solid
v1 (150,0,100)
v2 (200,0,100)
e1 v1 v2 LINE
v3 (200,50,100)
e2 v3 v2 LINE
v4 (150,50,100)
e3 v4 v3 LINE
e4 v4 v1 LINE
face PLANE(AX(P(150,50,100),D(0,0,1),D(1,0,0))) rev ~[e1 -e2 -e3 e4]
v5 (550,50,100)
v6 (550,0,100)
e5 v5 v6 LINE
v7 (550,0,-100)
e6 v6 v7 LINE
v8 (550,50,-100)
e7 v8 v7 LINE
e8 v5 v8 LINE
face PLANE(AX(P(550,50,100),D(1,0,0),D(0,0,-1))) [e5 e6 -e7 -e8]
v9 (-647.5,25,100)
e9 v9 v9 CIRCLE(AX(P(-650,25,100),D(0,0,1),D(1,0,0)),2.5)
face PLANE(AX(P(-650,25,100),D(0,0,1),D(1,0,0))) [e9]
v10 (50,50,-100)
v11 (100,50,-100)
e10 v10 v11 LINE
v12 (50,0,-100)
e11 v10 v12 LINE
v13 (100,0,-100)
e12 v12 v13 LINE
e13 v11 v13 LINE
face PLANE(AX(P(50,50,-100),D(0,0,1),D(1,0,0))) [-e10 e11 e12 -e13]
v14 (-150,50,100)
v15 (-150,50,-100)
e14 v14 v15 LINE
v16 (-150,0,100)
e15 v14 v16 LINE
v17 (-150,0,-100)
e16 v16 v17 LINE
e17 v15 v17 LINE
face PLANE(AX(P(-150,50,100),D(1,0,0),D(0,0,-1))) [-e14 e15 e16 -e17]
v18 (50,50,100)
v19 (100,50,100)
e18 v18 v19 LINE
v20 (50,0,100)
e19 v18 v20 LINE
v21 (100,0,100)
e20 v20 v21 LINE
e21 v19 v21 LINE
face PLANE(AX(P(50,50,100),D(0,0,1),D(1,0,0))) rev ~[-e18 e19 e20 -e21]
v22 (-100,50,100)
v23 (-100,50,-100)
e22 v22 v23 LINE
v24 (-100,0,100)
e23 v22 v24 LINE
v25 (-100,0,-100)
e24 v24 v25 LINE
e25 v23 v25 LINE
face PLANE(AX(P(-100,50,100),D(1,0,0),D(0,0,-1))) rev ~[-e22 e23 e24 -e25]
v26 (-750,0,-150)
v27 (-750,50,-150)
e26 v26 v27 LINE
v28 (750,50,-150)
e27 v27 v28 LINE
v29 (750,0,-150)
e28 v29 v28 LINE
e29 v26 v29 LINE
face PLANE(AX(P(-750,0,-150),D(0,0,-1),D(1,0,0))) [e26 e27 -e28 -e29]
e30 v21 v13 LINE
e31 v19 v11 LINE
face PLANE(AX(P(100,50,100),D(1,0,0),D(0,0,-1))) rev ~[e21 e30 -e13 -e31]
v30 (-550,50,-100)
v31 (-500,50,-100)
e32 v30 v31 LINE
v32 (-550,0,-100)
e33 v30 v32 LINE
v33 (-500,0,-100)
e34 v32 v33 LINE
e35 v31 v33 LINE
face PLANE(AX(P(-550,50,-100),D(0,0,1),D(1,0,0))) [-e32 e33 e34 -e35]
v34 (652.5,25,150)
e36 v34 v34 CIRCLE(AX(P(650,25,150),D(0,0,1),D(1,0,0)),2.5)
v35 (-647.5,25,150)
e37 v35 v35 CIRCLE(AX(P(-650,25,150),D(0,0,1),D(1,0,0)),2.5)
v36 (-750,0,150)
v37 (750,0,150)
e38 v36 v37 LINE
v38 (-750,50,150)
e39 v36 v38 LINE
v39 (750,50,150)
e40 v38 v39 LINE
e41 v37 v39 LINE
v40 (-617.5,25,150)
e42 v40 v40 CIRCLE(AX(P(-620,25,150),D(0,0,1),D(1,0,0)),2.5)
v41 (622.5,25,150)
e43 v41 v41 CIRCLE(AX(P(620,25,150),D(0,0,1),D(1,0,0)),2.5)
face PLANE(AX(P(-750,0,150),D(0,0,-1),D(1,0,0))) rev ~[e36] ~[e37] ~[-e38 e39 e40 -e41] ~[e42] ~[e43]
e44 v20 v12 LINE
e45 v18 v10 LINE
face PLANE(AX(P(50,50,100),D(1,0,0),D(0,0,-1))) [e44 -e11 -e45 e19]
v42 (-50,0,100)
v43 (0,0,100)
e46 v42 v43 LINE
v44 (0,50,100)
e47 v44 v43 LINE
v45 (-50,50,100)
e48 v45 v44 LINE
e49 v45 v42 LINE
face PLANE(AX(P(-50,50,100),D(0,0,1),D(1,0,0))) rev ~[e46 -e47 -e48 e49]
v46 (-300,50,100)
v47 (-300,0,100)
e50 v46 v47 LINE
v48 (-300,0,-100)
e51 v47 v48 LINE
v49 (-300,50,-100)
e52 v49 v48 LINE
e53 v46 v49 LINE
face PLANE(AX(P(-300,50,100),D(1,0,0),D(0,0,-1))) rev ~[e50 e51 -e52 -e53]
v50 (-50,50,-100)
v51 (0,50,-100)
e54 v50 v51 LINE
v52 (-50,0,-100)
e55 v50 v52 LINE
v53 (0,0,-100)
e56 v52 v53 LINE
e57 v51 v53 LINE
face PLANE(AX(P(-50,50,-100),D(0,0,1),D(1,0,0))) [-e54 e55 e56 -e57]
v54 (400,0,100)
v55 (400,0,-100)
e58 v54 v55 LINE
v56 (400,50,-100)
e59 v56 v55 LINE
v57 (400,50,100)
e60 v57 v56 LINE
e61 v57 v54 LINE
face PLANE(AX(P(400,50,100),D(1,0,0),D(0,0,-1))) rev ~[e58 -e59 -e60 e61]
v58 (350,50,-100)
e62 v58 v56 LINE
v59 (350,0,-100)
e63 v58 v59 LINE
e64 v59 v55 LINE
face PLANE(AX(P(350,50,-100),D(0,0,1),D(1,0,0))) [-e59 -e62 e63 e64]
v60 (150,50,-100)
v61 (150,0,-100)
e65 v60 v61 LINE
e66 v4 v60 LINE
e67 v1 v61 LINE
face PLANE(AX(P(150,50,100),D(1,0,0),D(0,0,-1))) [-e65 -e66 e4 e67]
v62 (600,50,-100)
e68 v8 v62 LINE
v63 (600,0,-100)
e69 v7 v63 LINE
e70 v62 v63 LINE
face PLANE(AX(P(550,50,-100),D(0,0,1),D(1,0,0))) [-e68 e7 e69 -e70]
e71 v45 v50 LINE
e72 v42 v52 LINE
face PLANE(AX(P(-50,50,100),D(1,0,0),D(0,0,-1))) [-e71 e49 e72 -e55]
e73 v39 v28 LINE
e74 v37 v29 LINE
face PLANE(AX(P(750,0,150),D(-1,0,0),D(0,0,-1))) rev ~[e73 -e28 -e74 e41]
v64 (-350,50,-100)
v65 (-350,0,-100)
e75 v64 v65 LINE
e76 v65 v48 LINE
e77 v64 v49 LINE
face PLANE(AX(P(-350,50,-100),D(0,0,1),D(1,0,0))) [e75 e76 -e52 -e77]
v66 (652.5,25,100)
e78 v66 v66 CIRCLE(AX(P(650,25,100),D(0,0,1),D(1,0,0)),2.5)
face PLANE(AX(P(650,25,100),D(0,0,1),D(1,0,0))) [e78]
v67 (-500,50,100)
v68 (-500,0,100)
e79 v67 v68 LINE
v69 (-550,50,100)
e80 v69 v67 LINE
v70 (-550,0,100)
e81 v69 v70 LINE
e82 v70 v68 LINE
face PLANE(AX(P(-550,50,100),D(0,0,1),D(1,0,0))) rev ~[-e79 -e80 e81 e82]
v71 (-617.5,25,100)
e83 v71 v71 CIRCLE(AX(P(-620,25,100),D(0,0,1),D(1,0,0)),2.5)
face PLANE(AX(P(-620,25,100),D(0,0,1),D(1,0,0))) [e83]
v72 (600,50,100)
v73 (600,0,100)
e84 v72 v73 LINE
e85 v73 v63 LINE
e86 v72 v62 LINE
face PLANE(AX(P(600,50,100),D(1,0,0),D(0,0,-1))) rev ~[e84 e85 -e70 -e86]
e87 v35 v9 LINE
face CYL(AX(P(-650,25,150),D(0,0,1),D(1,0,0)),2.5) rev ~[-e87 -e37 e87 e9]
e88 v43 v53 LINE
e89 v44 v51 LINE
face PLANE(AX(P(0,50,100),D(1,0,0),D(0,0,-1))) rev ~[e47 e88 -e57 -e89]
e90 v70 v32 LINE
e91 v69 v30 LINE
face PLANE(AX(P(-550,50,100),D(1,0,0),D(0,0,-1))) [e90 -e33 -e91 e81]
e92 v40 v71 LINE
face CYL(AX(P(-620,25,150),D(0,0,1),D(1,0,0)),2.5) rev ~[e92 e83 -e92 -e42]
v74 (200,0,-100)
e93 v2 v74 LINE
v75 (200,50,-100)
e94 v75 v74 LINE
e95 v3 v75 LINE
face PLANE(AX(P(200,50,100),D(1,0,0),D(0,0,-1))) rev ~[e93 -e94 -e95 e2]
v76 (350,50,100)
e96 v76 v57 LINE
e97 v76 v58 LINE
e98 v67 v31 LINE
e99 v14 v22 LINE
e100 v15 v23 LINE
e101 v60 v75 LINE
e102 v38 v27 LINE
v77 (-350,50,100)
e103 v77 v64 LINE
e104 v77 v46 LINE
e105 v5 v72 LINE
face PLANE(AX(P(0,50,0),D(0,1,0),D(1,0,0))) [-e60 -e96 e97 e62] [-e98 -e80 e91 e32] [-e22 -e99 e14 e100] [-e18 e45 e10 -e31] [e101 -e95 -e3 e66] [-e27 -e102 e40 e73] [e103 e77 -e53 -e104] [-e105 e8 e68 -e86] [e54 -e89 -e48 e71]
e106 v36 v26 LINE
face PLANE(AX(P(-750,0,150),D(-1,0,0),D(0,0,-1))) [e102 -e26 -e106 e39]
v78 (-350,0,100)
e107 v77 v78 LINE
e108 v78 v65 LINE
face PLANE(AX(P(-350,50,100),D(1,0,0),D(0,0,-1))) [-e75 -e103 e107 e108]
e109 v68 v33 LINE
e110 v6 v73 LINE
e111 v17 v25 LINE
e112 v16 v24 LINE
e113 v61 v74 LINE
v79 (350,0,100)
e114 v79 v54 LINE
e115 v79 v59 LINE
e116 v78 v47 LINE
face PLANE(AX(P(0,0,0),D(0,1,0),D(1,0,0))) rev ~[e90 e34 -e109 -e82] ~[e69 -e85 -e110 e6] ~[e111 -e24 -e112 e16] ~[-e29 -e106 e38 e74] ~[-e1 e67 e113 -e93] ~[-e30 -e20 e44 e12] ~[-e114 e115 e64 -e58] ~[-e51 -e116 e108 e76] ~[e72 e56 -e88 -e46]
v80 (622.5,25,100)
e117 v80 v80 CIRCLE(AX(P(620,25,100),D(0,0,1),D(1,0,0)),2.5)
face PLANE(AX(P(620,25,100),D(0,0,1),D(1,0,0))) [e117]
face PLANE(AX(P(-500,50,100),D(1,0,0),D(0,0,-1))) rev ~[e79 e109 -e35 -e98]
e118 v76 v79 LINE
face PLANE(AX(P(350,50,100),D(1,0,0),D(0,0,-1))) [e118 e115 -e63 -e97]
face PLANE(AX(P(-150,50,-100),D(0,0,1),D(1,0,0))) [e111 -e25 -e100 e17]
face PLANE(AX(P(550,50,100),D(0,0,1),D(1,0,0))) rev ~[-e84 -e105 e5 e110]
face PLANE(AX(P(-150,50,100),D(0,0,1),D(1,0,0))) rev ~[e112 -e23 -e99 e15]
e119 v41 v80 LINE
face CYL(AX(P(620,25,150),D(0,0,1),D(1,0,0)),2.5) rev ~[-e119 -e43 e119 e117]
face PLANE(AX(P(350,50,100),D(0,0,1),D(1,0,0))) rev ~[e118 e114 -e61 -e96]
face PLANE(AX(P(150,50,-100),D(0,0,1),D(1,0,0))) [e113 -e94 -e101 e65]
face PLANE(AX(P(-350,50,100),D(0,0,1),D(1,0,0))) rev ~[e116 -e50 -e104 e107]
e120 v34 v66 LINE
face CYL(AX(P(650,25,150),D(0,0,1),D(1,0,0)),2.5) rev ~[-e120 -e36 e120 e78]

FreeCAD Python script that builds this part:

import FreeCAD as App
import Part
import Sketcher

V = App.Vector


def add_polygon(sketch, points):
    """Adds a closed chain of lines whose ends are joined by coincident constraints."""
    first, n = sketch.GeometryCount, len(points)
    for a, b in zip(points, points[1:] + points[:1]):
        sketch.addGeometry(Part.LineSegment(App.Vector(*a, 0), App.Vector(*b, 0)), False)
    for i in range(n):
        sketch.addConstraint(Sketcher.Constraint("Coincident", first + i, 2, first + (i + 1) % n, 1))

doc = App.newDocument("Part")
params = doc.addObject("Spreadsheet::Sheet", "Params")
for row, (alias, value) in enumerate([
    ("sketch1_width", "1500 mm"),
    ("sketch1_height", "300 mm"),
    ("pad1_length", "50 mm"),
    ("sketch2_diameter", "5 mm"),
    ("pocket1_length", "50 mm"),
    ("sketch3_width", "50 mm"),
    ("sketch3_height", "200 mm"),
], start=1):
    params.set(f"A{row}", alias)
    params.set(f"B{row}", "=" + value)
    params.setAlias(f"B{row}", alias)

body = doc.addObject("PartDesign::Body", "Body")

sketch1 = body.newObject("Sketcher::SketchObject", "Sketch")
sketch1.AttachmentSupport = (doc.getObject("XZ_Plane"), [""])
sketch1.MapMode = "FlatFace"
add_polygon(sketch1, [(-750, -150), (-750, 150), (750, 150), (750, -150)])
sketch1.addConstraint(Sketcher.Constraint("Vertical", 0))
sketch1.addConstraint(Sketcher.Constraint("Horizontal", 1))
sketch1.addConstraint(Sketcher.Constraint("Vertical", 2))
sketch1.addConstraint(Sketcher.Constraint("Horizontal", 3))
sketch1.addConstraint(Sketcher.Constraint("Symmetric", 0, 2, 2, 2, -1, 1))
sketch1.addConstraint(Sketcher.Constraint("DistanceX", 1, 1, 1, 2, 1500.0))
sketch1.addConstraint(Sketcher.Constraint("DistanceY", 0, 1, 0, 2, 300.0))
sketch1.setExpression("Constraints[9]", "Params.sketch1_width")
sketch1.setExpression("Constraints[10]", "Params.sketch1_height")
pad1 = body.newObject("PartDesign::Pad", "Pad")
pad1.Profile = sketch1
pad1.setExpression("Length", "Params.pad1_length")
pad1.Reversed = True

sketch2 = body.newObject("Sketcher::SketchObject", "Sketch001")
sketch2.AttachmentSupport = (doc.getObject("XY_Plane"), [""])
sketch2.MapMode = "FlatFace"
sketch2.AttachmentOffset = App.Placement(V(0, 0, 150), App.Rotation())
sketch2.addGeometry(Part.Circle(V(-650, 25, 0), V(0, 0, 1), 2.5), False)
sketch2.addGeometry(Part.Circle(V(-620, 25, 0), V(0, 0, 1), 2.5), False)
sketch2.addGeometry(Part.Circle(V(620, 25, 0), V(0, 0, 1), 2.5), False)
sketch2.addGeometry(Part.Circle(V(650, 25, 0), V(0, 0, 1), 2.5), False)
sketch2.addConstraint(Sketcher.Constraint("Equal", 0, 1))
sketch2.addConstraint(Sketcher.Constraint("Equal", 1, 2))
sketch2.addConstraint(Sketcher.Constraint("Equal", 2, 3))
sketch2.addConstraint(Sketcher.Constraint("Symmetric", 1, 3, 2, 3, -2))
sketch2.addConstraint(Sketcher.Constraint("Symmetric", 0, 3, 3, 3, -2))
sketch2.addConstraint(Sketcher.Constraint("Horizontal", 0, 3, 1, 3))
sketch2.addConstraint(Sketcher.Constraint("Diameter", 0, 5.0))
sketch2.addConstraint(Sketcher.Constraint("DistanceX", 0, 3, -1, 1, 650.0))
sketch2.addConstraint(Sketcher.Constraint("DistanceY", -1, 1, 0, 3, 25.0))
sketch2.addConstraint(Sketcher.Constraint("DistanceX", 1, 3, -1, 1, 620.0))
sketch2.setExpression("Constraints[6]", "Params.sketch2_diameter")
pocket1 = body.newObject("PartDesign::Pocket", "Pocket")
pocket1.Profile = sketch2
pocket1.setExpression("Length", "Params.pocket1_length")

sketch3 = body.newObject("Sketcher::SketchObject", "Sketch002")
sketch3.AttachmentSupport = (doc.getObject("XZ_Plane"), [""])
sketch3.MapMode = "FlatFace"
sketch3.AttachmentOffset = App.Placement(V(0, 0, -50), App.Rotation())
add_polygon(sketch3, [(-550, -100), (-550, 100), (-500, 100), (-500, -100)])
add_polygon(sketch3, [(-350, -100), (-350, 100), (-300, 100), (-300, -100)])
add_polygon(sketch3, [(-150, -100), (-150, 100), (-100, 100), (-100, -100)])
add_polygon(sketch3, [(-50, -100), (-50, 100), (0, 100), (0, -100)])
add_polygon(sketch3, [(50, -100), (50, 100), (100, 100), (100, -100)])
add_polygon(sketch3, [(150, -100), (150, 100), (200, 100), (200, -100)])
add_polygon(sketch3, [(350, -100), (350, 100), (400, 100), (400, -100)])
add_polygon(sketch3, [(550, -100), (550, 100), (600, 100), (600, -100)])
sketch3.addConstraint(Sketcher.Constraint("Vertical", 0))
sketch3.addConstraint(Sketcher.Constraint("Horizontal", 1))
sketch3.addConstraint(Sketcher.Constraint("Vertical", 2))
sketch3.addConstraint(Sketcher.Constraint("Horizontal", 3))
sketch3.addConstraint(Sketcher.Constraint("Vertical", 4))
sketch3.addConstraint(Sketcher.Constraint("Horizontal", 5))
sketch3.addConstraint(Sketcher.Constraint("Vertical", 6))
sketch3.addConstraint(Sketcher.Constraint("Horizontal", 7))
sketch3.addConstraint(Sketcher.Constraint("Vertical", 8))
sketch3.addConstraint(Sketcher.Constraint("Horizontal", 9))
sketch3.addConstraint(Sketcher.Constraint("Vertical", 10))
sketch3.addConstraint(Sketcher.Constraint("Horizontal", 11))
sketch3.addConstraint(Sketcher.Constraint("Vertical", 12))
sketch3.addConstraint(Sketcher.Constraint("Horizontal", 13))
sketch3.addConstraint(Sketcher.Constraint("Vertical", 14))
sketch3.addConstraint(Sketcher.Constraint("Horizontal", 15))
sketch3.addConstraint(Sketcher.Constraint("Vertical", 16))
sketch3.addConstraint(Sketcher.Constraint("Horizontal", 17))
sketch3.addConstraint(Sketcher.Constraint("Vertical", 18))
sketch3.addConstraint(Sketcher.Constraint("Horizontal", 19))
sketch3.addConstraint(Sketcher.Constraint("Vertical", 20))
sketch3.addConstraint(Sketcher.Constraint("Horizontal", 21))
sketch3.addConstraint(Sketcher.Constraint("Vertical", 22))
sketch3.addConstraint(Sketcher.Constraint("Horizontal", 23))
sketch3.addConstraint(Sketcher.Constraint("Vertical", 24))
sketch3.addConstraint(Sketcher.Constraint("Horizontal", 25))
sketch3.addConstraint(Sketcher.Constraint("Vertical", 26))
sketch3.addConstraint(Sketcher.Constraint("Horizontal", 27))
sketch3.addConstraint(Sketcher.Constraint("Vertical", 28))
sketch3.addConstraint(Sketcher.Constraint("Horizontal", 29))
sketch3.addConstraint(Sketcher.Constraint("Vertical", 30))
sketch3.addConstraint(Sketcher.Constraint("Horizontal", 31))
sketch3.addConstraint(Sketcher.Constraint("Symmetric", 13, 2, 14, 2, -1, 1))
sketch3.addConstraint(Sketcher.Constraint("Symmetric", 15, 2, 16, 2, -1, 1))
sketch3.addConstraint(Sketcher.Constraint("Symmetric", 10, 2, 17, 2, -1, 1))
sketch3.addConstraint(Sketcher.Constraint("Symmetric", 11, 2, 20, 2, -1, 1))
sketch3.addConstraint(Sketcher.Constraint("Symmetric", 7, 2, 24, 2, -1, 1))
sketch3.addConstraint(Sketcher.Constraint("Symmetric", 3, 2, 28, 2, -1, 1))
sketch3.addConstraint(Sketcher.Constraint("Horizontal", 1, 2, 4, 2))
sketch3.addConstraint(Sketcher.Constraint("Horizontal", 3, 2, 6, 2))
sketch3.addConstraint(Sketcher.Constraint("Horizontal", 5, 2, 8, 2))
sketch3.addConstraint(Sketcher.Constraint("Horizontal", 7, 2, 10, 2))
sketch3.addConstraint(Sketcher.Constraint("Horizontal", 9, 2, 12, 2))
sketch3.addConstraint(Sketcher.Constraint("Horizontal", 15, 2, 18, 2))
sketch3.addConstraint(Sketcher.Constraint("Horizontal", 19, 2, 22, 2))
sketch3.addConstraint(Sketcher.Constraint("Horizontal", 23, 2, 26, 2))
sketch3.addConstraint(Sketcher.Constraint("Horizontal", 27, 2, 30, 2))
sketch3.addConstraint(Sketcher.Constraint("Equal", 3, 5))
sketch3.addConstraint(Sketcher.Constraint("Equal", 7, 9))
sketch3.addConstraint(Sketcher.Constraint("Equal", 11, 13))
sketch3.addConstraint(Sketcher.Constraint("Equal", 15, 17))
sketch3.addConstraint(Sketcher.Constraint("Equal", 19, 21))
sketch3.addConstraint(Sketcher.Constraint("Equal", 23, 25))
sketch3.addConstraint(Sketcher.Constraint("Equal", 27, 29))
sketch3.addConstraint(Sketcher.Constraint("DistanceX", 1, 1, 1, 2, 50.0))
sketch3.addConstraint(Sketcher.Constraint("DistanceY", 0, 1, 0, 2, 200.0))
sketch3.addConstraint(Sketcher.Constraint("DistanceX", 0, 2, -1, 1, 550.0))
sketch3.addConstraint(Sketcher.Constraint("DistanceX", 4, 2, -1, 1, 350.0))
sketch3.setExpression("Constraints[86]", "Params.sketch3_width")
sketch3.setExpression("Constraints[87]", "Params.sketch3_height")
pocket2 = body.newObject("PartDesign::Pocket", "Pocket001")
pocket2.Profile = sketch3
pocket2.Type = "ThroughAll"
pocket2.Reversed = True

doc.recompute()
